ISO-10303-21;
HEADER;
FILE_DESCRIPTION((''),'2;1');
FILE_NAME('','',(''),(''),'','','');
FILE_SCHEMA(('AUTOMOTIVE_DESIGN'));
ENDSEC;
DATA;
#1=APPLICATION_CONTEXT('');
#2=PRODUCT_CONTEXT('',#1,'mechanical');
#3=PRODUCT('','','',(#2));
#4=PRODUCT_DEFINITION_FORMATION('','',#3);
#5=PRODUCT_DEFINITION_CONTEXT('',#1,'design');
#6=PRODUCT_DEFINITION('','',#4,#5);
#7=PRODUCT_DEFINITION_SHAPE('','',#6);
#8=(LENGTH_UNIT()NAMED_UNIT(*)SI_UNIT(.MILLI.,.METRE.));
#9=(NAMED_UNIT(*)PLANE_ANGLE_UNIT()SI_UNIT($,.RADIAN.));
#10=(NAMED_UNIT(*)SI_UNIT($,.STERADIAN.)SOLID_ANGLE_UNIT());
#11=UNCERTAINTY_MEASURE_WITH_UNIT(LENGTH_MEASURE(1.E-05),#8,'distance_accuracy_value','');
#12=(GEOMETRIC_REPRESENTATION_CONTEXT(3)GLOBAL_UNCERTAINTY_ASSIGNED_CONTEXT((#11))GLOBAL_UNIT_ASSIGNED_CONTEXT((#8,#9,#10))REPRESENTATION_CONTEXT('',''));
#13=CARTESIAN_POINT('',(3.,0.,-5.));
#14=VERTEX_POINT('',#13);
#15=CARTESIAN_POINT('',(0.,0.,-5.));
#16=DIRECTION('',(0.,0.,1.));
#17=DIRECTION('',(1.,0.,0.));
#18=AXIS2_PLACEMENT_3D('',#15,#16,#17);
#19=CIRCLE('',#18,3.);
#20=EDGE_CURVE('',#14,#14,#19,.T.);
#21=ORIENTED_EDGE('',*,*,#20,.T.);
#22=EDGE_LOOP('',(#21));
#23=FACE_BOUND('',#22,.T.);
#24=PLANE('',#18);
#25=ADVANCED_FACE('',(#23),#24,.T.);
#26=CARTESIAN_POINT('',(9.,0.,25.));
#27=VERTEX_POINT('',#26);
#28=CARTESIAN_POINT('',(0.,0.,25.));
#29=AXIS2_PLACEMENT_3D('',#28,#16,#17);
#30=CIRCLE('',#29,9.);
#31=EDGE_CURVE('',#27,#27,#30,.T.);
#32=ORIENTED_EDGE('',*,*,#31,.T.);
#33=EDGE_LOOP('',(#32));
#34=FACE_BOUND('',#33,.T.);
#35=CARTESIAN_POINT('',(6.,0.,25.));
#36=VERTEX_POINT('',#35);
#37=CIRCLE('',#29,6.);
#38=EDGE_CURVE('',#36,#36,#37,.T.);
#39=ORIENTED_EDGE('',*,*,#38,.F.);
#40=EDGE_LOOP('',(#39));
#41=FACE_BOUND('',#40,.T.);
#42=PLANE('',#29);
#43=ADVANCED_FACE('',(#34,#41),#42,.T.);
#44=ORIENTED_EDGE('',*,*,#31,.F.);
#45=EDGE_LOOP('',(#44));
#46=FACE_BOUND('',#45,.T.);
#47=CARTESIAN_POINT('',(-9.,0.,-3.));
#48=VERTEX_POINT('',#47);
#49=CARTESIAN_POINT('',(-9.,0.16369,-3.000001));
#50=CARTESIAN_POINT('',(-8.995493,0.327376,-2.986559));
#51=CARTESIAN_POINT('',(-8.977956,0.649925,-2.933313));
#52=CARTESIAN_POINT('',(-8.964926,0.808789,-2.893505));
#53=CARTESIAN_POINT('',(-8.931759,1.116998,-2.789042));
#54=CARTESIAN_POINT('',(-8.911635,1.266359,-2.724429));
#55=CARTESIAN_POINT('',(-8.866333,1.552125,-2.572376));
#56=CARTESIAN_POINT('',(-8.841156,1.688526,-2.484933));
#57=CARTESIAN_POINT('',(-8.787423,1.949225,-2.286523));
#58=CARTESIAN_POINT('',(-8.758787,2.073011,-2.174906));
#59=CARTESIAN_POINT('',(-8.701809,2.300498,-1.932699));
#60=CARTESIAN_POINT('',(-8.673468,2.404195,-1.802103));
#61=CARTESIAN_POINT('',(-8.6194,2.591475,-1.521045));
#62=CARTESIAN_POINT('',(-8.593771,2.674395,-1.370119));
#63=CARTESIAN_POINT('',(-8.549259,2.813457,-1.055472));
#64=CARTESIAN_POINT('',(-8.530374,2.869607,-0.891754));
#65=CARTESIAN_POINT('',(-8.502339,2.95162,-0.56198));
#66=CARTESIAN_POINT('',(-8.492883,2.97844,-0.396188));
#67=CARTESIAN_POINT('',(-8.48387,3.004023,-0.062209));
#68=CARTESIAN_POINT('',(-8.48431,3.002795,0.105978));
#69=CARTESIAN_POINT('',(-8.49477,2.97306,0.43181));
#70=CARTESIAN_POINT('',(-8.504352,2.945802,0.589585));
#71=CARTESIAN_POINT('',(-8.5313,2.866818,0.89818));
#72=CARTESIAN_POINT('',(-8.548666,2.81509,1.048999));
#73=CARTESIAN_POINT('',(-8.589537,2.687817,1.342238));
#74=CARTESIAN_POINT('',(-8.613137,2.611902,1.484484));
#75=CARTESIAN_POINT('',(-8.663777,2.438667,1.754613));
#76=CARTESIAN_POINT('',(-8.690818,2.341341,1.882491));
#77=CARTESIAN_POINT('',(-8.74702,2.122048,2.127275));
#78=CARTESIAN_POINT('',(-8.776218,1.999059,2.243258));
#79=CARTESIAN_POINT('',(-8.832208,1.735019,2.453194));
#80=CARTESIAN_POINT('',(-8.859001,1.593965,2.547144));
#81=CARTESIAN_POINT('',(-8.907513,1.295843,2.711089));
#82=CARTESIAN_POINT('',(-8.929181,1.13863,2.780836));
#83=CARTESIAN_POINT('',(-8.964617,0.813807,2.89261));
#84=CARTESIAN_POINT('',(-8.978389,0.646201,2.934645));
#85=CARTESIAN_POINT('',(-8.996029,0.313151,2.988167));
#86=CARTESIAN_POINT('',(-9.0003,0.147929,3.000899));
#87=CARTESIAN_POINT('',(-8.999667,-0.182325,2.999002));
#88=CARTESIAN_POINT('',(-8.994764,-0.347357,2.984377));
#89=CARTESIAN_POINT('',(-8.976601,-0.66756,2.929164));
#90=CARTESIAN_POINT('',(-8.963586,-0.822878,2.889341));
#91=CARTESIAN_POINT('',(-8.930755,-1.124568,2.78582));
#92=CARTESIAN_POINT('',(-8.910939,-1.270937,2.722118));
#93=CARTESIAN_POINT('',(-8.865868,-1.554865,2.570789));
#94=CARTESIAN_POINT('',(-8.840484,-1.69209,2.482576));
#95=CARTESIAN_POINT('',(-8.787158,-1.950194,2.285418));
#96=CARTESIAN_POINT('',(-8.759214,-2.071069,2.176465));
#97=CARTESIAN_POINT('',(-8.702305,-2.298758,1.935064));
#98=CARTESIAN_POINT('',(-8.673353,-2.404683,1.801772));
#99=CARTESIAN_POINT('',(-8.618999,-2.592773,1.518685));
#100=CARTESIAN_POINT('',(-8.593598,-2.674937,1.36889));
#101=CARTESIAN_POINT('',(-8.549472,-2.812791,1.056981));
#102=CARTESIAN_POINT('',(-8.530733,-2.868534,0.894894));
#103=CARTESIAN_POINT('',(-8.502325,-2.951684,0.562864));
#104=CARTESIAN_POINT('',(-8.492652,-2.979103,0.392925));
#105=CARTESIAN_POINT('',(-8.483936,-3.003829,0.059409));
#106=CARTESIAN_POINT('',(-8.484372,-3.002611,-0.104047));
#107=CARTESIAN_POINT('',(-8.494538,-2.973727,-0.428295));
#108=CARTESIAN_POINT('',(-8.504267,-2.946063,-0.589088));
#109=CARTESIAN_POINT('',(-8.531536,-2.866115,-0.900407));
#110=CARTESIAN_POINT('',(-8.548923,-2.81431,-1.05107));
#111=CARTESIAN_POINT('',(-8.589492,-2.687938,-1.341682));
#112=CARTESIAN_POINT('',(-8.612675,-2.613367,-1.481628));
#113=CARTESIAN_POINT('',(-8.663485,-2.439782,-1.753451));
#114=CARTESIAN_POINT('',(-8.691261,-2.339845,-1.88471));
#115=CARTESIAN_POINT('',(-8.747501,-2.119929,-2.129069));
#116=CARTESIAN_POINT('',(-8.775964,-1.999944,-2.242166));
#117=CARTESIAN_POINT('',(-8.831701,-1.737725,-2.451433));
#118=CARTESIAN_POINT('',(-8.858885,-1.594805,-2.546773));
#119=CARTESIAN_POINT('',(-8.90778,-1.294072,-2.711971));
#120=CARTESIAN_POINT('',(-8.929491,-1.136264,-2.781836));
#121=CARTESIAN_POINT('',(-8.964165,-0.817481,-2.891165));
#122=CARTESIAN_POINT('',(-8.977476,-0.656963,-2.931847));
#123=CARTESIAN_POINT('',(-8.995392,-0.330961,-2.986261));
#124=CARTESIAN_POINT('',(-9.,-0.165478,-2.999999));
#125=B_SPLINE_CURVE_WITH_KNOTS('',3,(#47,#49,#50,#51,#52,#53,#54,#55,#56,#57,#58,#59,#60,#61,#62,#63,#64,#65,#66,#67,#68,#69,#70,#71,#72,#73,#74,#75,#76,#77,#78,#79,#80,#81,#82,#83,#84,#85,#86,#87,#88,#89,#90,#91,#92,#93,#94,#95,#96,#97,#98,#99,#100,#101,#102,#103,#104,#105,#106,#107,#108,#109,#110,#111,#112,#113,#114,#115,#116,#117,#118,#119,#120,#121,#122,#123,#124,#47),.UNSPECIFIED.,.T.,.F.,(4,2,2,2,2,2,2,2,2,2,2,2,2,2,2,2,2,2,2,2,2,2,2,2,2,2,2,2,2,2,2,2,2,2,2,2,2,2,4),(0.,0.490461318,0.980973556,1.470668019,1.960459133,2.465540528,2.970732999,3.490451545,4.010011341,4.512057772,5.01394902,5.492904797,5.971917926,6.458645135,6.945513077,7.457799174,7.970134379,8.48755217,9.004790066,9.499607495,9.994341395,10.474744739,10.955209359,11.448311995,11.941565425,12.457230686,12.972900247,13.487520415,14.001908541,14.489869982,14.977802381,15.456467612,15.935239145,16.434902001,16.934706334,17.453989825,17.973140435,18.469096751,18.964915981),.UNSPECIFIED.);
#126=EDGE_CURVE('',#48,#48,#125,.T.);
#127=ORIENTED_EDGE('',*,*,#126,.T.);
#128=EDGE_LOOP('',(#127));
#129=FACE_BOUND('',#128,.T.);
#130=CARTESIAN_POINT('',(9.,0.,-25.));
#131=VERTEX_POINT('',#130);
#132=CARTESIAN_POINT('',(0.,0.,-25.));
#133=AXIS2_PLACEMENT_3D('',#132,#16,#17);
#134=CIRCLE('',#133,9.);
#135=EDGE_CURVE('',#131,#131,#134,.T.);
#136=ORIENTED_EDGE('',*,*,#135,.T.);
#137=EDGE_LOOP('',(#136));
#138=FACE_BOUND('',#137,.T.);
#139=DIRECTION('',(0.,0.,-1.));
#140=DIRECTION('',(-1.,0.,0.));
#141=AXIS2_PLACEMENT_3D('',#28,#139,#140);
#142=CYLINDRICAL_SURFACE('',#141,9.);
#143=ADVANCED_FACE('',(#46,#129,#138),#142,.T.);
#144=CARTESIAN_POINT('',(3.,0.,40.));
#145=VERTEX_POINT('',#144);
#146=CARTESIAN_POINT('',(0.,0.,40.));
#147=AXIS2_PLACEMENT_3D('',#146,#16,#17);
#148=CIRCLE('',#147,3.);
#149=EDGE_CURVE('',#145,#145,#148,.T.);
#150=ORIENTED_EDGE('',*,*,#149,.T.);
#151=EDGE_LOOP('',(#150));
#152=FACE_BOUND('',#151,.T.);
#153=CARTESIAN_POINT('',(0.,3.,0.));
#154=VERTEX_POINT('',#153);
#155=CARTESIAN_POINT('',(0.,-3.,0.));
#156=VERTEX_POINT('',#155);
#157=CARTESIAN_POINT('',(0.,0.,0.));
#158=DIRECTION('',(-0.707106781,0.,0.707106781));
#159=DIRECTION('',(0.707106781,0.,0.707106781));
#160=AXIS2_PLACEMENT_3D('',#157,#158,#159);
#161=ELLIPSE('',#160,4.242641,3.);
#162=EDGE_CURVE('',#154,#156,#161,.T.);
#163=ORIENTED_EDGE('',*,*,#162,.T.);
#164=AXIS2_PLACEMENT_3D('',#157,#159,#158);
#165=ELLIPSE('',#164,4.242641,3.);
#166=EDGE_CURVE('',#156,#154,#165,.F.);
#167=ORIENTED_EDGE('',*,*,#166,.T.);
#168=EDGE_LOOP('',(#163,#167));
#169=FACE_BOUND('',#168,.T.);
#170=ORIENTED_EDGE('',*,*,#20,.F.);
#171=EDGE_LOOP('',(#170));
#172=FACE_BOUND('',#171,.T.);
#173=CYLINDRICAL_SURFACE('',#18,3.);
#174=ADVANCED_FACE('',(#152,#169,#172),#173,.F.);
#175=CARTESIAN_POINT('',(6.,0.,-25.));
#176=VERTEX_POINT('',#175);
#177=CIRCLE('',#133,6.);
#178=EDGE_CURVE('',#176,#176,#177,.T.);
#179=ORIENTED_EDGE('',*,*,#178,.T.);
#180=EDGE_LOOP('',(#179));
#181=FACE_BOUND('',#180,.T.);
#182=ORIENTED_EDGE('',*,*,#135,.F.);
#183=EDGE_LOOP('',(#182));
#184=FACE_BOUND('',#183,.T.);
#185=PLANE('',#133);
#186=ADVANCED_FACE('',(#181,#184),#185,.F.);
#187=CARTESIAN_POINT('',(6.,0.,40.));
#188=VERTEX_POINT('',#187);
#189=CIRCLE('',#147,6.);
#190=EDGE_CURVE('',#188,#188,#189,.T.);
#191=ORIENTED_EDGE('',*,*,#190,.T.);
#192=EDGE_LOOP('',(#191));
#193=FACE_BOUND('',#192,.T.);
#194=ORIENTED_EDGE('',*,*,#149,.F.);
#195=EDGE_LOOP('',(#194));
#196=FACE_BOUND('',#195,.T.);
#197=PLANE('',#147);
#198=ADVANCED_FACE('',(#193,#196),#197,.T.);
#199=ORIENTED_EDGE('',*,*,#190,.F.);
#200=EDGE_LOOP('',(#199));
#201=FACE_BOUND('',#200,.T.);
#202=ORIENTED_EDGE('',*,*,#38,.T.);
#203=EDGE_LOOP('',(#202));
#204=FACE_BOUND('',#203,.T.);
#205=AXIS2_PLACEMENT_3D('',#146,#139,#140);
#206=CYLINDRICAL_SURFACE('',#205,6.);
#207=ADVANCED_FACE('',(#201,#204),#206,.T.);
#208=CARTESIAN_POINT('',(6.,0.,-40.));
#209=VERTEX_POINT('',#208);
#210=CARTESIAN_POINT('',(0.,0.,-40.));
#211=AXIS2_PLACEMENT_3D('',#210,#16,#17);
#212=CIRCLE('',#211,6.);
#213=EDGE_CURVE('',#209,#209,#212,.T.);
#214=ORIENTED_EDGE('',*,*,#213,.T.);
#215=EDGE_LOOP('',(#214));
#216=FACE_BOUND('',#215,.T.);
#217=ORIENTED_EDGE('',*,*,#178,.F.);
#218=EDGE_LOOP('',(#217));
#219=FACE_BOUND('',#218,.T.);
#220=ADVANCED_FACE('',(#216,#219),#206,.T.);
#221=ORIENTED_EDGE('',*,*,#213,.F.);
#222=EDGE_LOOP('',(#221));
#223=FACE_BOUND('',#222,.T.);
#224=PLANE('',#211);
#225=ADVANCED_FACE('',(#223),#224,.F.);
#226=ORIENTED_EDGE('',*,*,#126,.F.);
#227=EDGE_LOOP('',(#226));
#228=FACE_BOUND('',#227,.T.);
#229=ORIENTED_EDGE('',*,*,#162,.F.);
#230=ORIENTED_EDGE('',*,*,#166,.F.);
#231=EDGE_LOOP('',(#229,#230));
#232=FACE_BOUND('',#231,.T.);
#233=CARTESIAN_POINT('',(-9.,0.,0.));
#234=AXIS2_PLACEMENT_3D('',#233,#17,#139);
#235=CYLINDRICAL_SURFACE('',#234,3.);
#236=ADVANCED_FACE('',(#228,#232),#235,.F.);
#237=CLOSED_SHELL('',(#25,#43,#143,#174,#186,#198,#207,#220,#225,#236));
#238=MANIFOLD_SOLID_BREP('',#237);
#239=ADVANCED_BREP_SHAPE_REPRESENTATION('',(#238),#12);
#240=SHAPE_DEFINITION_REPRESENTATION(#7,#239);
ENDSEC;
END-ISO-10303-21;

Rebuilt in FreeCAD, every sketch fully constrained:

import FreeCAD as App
import Part
import Sketcher
from FreeCAD import Vector

doc = App.newDocument("Part")
body = doc.addObject("PartDesign::Body", "Body")

# Sketch on XY plane
sketch1 = doc.addObject("Sketcher::SketchObject", "Sketch")
body.addObject(sketch1)
sketch1.AttachmentSupport = (doc.XY_Plane, [""])
sketch1.MapMode = "FlatFace"
sketch1.addGeometry(Part.Circle(Vector(0, 0, 0), Vector(0, 0, 1), 6), False)
sketch1.addConstraint([
    Sketcher.Constraint("Coincident", 0, 3, -1, 1),
    Sketcher.Constraint("Diameter", 0, 12.0),
])
pad1 = doc.addObject("PartDesign::Pad", "Pad")
body.addObject(pad1)
pad1.Profile = sketch1
pad1.Length = 80
pad1.Midplane = True

# Sketch on XY plane
sketch2 = doc.addObject("Sketcher::SketchObject", "Sketch001")
body.addObject(sketch2)
sketch2.AttachmentSupport = (doc.XY_Plane, [""])
sketch2.MapMode = "FlatFace"
sketch2.addGeometry(Part.Circle(Vector(0, 0, 0), Vector(0, 0, 1), 9), False)
sketch2.addConstraint([
    Sketcher.Constraint("Coincident", 0, 3, -1, 1),
    Sketcher.Constraint("Diameter", 0, 18.0),
])
pad2 = doc.addObject("PartDesign::Pad", "Pad001")
body.addObject(pad2)
pad2.Profile = sketch2
pad2.Length = 50
pad2.Midplane = True

# Sketch on XY plane
sketch3 = doc.addObject("Sketcher::SketchObject", "Sketch002")
body.addObject(sketch3)
sketch3.AttachmentSupport = (doc.XY_Plane, [""])
sketch3.MapMode = "FlatFace"
sketch3.AttachmentOffset = App.Placement(Vector(0, 0, 40), App.Rotation())
sketch3.addGeometry(Part.Circle(Vector(0, 0, 0), Vector(0, 0, 1), 3), False)
sketch3.addConstraint([
    Sketcher.Constraint("Coincident", 0, 3, -1, 1),
    Sketcher.Constraint("Diameter", 0, 6.0),
])
pocket1 = doc.addObject("PartDesign::Pocket", "Pocket")
body.addObject(pocket1)
pocket1.Profile = sketch3
pocket1.Length = 45

# Sketch on YZ plane
sketch4 = doc.addObject("Sketcher::SketchObject", "Sketch003")
body.addObject(sketch4)
sketch4.AttachmentSupport = (doc.YZ_Plane, [""])
sketch4.MapMode = "FlatFace"
sketch4.addGeometry(Part.Circle(Vector(0, 0, 0), Vector(0, 0, 1), 3), False)
sketch4.addConstraint([
    Sketcher.Constraint("Coincident", 0, 3, -1, 1),
    Sketcher.Constraint("Diameter", 0, 6.0),
])
pocket2 = doc.addObject("PartDesign::Pocket", "Pocket001")
body.addObject(pocket2)
pocket2.Profile = sketch4
pocket2.Type = "ThroughAll"

doc.recompute()
